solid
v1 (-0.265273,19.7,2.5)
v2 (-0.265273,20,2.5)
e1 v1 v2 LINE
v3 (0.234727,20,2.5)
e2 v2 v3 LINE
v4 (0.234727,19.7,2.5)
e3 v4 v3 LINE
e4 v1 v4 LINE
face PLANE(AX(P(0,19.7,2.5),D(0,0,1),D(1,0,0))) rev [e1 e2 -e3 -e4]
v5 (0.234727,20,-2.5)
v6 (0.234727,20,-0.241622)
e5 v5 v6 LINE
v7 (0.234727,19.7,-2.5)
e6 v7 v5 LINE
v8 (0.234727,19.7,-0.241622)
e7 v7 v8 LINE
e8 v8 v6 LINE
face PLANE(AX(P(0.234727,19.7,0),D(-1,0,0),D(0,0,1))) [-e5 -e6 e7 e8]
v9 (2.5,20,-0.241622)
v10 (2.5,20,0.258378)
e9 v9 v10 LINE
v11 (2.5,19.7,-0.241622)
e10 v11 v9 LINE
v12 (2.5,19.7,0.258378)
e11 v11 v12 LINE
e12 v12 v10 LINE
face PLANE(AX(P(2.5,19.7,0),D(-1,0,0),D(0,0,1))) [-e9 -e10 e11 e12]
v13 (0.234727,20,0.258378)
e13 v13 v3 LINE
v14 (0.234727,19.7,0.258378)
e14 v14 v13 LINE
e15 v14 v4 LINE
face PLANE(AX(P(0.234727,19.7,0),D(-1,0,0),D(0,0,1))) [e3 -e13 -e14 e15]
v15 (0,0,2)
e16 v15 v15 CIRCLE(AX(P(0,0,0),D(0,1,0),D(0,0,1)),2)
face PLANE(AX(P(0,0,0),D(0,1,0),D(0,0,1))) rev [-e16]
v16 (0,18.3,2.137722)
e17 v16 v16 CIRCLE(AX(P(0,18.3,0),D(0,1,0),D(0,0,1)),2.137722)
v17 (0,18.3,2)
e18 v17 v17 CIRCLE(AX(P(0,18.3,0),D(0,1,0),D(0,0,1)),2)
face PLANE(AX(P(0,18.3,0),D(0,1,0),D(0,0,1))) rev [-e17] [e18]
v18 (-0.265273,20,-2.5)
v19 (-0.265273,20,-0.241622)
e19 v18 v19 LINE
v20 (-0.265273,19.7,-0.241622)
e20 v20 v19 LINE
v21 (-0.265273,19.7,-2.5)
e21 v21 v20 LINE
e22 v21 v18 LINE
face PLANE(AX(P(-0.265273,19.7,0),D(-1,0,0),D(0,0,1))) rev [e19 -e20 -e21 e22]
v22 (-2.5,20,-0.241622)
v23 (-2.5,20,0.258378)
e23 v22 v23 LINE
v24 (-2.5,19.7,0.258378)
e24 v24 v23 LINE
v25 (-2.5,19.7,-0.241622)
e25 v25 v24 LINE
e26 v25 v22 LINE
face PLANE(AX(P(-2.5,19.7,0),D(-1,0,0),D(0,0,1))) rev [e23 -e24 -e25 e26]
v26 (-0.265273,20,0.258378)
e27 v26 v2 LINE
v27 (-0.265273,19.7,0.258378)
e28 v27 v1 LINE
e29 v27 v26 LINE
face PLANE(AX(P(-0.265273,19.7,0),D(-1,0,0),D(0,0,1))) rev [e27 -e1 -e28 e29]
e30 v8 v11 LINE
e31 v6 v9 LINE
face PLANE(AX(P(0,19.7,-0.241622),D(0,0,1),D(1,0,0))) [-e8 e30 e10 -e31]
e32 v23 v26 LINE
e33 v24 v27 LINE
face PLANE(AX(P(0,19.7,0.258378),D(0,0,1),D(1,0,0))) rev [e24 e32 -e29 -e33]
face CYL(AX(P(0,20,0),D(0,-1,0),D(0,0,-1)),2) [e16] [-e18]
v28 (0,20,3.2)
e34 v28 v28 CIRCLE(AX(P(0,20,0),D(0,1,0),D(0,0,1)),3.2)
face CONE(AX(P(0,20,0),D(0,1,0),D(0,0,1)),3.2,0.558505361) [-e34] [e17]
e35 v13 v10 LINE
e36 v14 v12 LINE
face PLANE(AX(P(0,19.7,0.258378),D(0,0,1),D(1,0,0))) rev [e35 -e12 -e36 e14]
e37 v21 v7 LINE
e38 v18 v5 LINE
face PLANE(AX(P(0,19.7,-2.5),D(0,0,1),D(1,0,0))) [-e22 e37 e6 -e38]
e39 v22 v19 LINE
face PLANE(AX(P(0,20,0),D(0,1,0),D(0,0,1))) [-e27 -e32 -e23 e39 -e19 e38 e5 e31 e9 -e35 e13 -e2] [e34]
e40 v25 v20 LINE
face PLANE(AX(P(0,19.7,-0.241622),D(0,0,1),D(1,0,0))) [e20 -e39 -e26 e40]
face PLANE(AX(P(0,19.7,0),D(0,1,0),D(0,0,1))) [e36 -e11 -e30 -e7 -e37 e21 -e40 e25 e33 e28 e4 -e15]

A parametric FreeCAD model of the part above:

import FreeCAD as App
import Part
import Sketcher
from FreeCAD import Vector
Q = App.Units.Quantity

doc = App.newDocument("Part")
body = doc.addObject("PartDesign::Body", "Body")

# Sketch on XZ plane
sketch1 = body.newObject("Sketcher::SketchObject", "Sketch")
sketch1.AttachmentSupport = (doc.getObject("XZ_Plane"), [""])
sketch1.MapMode = "FlatFace"
sketch1.addGeometry(Part.Circle(Vector(0, 0, 0), Vector(0, 0, 1), 2), False)
sketch1.addConstraint(Sketcher.Constraint("Coincident", 0, 3, -1, 1))
sketch1.addConstraint(Sketcher.Constraint("Diameter", 0, Q("4 mm")))
pad1 = body.newObject("PartDesign::Pad", "Pad")
pad1.Profile = sketch1
pad1.Length = 20
pad1.Reversed = True

# Sketch on XZ plane
sketch2 = body.newObject("Sketcher::SketchObject", "Sketch001")
sketch2.AttachmentSupport = (doc.getObject("XZ_Plane"), [""])
sketch2.MapMode = "FlatFace"
sketch2.AttachmentOffset = App.Placement(Vector(0, 0, -20), App.Rotation())
sketch2.addGeometry(Part.Circle(Vector(0, 0, 0), Vector(0, 0, 1), 3.2), False)
sketch2.addConstraint(Sketcher.Constraint("Coincident", 0, 3, -1, 1))
sketch2.addConstraint(Sketcher.Constraint("Diameter", 0, Q("6.4 mm")))
pad2 = body.newObject("PartDesign::Pad", "Pad001")
pad2.Profile = sketch2
pad2.Length = 1.7
pad2.TaperAngle = -32

# Sketch on XZ plane
sketch3 = body.newObject("Sketcher::SketchObject", "Sketch002")
sketch3.AttachmentSupport = (doc.getObject("XZ_Plane"), [""])
sketch3.MapMode = "FlatFace"
sketch3.AttachmentOffset = App.Placement(Vector(0, 0, -20), App.Rotation())
sketch3.addGeometry(Part.LineSegment(Vector(-0.3, -2.5, 0), Vector(-0.3, -0.2, 0)), False)
sketch3.addGeometry(Part.LineSegment(Vector(-0.3, -0.2, 0), Vector(-2.5, -0.2, 0)), False)
sketch3.addGeometry(Part.LineSegment(Vector(-2.5, -0.2, 0), Vector(-2.5, 0.3, 0)), False)
sketch3.addGeometry(Part.LineSegment(Vector(-2.5, 0.3, 0), Vector(-0.3, 0.3, 0)), False)
sketch3.addGeometry(Part.LineSegment(Vector(-0.3, 0.3, 0), Vector(-0.3, 2.5, 0)), False)
sketch3.addGeometry(Part.LineSegment(Vector(-0.3, 2.5, 0), Vector(0.2, 2.5, 0)), False)
sketch3.addGeometry(Part.LineSegment(Vector(0.2, 2.5, 0), Vector(0.2, 0.3, 0)), False)
sketch3.addGeometry(Part.LineSegment(Vector(0.2, 0.3, 0), Vector(2.5, 0.3, 0)), False)
sketch3.addGeometry(Part.LineSegment(Vector(2.5, 0.3, 0), Vector(2.5, -0.2, 0)), False)
sketch3.addGeometry(Part.LineSegment(Vector(2.5, -0.2, 0), Vector(0.2, -0.2, 0)), False)
sketch3.addGeometry(Part.LineSegment(Vector(0.2, -0.2, 0), Vector(0.2, -2.5, 0)), False)
sketch3.addGeometry(Part.LineSegment(Vector(0.2, -2.5, 0), Vector(-0.3, -2.5, 0)), False)
sketch3.addConstraint(Sketcher.Constraint("Coincident", 0, 2, 1, 1))
sketch3.addConstraint(Sketcher.Constraint("Coincident", 1, 2, 2, 1))
sketch3.addConstraint(Sketcher.Constraint("Coincident", 2, 2, 3, 1))
sketch3.addConstraint(Sketcher.Constraint("Coincident", 3, 2, 4, 1))
sketch3.addConstraint(Sketcher.Constraint("Coincident", 4, 2, 5, 1))
sketch3.addConstraint(Sketcher.Constraint("Coincident", 5, 2, 6, 1))
sketch3.addConstraint(Sketcher.Constraint("Coincident", 6, 2, 7, 1))
sketch3.addConstraint(Sketcher.Constraint("Coincident", 7, 2, 8, 1))
sketch3.addConstraint(Sketcher.Constraint("Coincident", 8, 2, 9, 1))
sketch3.addConstraint(Sketcher.Constraint("Coincident", 9, 2, 10, 1))
sketch3.addConstraint(Sketcher.Constraint("Coincident", 10, 2, 11, 1))
sketch3.addConstraint(Sketcher.Constraint("Coincident", 11, 2, 0, 1))
sketch3.addConstraint(Sketcher.Constraint("Vertical", 0))
sketch3.addConstraint(Sketcher.Constraint("Horizontal", 1))
sketch3.addConstraint(Sketcher.Constraint("Vertical", 2))
sketch3.addConstraint(Sketcher.Constraint("Horizontal", 3))
sketch3.addConstraint(Sketcher.Constraint("Vertical", 4))
sketch3.addConstraint(Sketcher.Constraint("Horizontal", 5))
sketch3.addConstraint(Sketcher.Constraint("Vertical", 6))
sketch3.addConstraint(Sketcher.Constraint("Horizontal", 7))
sketch3.addConstraint(Sketcher.Constraint("Vertical", 8))
sketch3.addConstraint(Sketcher.Constraint("Horizontal", 9))
sketch3.addConstraint(Sketcher.Constraint("Vertical", 10))
sketch3.addConstraint(Sketcher.Constraint("Horizontal", 11))
sketch3.addConstraint(Sketcher.Constraint("Symmetric", 2, 2, 7, 2, -2))
sketch3.addConstraint(Sketcher.Constraint("Symmetric", 5, 2, 10, 2, -1))
sketch3.addConstraint(Sketcher.Constraint("Horizontal", 1, 2, 8, 2))
sketch3.addConstraint(Sketcher.Constraint("Vertical", 0, 2, 3, 2))
sketch3.addConstraint(Sketcher.Constraint("Equal", 11, 2))
sketch3.addConstraint(Sketcher.Constraint("DistanceX", 5, 1, 5, 2, Q("0.5 mm")))
sketch3.addConstraint(Sketcher.Constraint("DistanceX", 1, 2, -1, 1, Q("2.5 mm")))
sketch3.addConstraint(Sketcher.Constraint("DistanceY", -1, 1, 4, 2, Q("2.5 mm")))
sketch3.addConstraint(Sketcher.Constraint("DistanceY", 0, 1, 0, 2, Q("2.258378 mm")))
sketch3.addConstraint(Sketcher.Constraint("DistanceX", 1, 2, 1, 1, Q("2.234727 mm")))
pocket1 = body.newObject("PartDesign::Pocket", "Pocket")
pocket1.Profile = sketch3
pocket1.Length = 0.3
pocket1.Reversed = True

doc.recompute()
